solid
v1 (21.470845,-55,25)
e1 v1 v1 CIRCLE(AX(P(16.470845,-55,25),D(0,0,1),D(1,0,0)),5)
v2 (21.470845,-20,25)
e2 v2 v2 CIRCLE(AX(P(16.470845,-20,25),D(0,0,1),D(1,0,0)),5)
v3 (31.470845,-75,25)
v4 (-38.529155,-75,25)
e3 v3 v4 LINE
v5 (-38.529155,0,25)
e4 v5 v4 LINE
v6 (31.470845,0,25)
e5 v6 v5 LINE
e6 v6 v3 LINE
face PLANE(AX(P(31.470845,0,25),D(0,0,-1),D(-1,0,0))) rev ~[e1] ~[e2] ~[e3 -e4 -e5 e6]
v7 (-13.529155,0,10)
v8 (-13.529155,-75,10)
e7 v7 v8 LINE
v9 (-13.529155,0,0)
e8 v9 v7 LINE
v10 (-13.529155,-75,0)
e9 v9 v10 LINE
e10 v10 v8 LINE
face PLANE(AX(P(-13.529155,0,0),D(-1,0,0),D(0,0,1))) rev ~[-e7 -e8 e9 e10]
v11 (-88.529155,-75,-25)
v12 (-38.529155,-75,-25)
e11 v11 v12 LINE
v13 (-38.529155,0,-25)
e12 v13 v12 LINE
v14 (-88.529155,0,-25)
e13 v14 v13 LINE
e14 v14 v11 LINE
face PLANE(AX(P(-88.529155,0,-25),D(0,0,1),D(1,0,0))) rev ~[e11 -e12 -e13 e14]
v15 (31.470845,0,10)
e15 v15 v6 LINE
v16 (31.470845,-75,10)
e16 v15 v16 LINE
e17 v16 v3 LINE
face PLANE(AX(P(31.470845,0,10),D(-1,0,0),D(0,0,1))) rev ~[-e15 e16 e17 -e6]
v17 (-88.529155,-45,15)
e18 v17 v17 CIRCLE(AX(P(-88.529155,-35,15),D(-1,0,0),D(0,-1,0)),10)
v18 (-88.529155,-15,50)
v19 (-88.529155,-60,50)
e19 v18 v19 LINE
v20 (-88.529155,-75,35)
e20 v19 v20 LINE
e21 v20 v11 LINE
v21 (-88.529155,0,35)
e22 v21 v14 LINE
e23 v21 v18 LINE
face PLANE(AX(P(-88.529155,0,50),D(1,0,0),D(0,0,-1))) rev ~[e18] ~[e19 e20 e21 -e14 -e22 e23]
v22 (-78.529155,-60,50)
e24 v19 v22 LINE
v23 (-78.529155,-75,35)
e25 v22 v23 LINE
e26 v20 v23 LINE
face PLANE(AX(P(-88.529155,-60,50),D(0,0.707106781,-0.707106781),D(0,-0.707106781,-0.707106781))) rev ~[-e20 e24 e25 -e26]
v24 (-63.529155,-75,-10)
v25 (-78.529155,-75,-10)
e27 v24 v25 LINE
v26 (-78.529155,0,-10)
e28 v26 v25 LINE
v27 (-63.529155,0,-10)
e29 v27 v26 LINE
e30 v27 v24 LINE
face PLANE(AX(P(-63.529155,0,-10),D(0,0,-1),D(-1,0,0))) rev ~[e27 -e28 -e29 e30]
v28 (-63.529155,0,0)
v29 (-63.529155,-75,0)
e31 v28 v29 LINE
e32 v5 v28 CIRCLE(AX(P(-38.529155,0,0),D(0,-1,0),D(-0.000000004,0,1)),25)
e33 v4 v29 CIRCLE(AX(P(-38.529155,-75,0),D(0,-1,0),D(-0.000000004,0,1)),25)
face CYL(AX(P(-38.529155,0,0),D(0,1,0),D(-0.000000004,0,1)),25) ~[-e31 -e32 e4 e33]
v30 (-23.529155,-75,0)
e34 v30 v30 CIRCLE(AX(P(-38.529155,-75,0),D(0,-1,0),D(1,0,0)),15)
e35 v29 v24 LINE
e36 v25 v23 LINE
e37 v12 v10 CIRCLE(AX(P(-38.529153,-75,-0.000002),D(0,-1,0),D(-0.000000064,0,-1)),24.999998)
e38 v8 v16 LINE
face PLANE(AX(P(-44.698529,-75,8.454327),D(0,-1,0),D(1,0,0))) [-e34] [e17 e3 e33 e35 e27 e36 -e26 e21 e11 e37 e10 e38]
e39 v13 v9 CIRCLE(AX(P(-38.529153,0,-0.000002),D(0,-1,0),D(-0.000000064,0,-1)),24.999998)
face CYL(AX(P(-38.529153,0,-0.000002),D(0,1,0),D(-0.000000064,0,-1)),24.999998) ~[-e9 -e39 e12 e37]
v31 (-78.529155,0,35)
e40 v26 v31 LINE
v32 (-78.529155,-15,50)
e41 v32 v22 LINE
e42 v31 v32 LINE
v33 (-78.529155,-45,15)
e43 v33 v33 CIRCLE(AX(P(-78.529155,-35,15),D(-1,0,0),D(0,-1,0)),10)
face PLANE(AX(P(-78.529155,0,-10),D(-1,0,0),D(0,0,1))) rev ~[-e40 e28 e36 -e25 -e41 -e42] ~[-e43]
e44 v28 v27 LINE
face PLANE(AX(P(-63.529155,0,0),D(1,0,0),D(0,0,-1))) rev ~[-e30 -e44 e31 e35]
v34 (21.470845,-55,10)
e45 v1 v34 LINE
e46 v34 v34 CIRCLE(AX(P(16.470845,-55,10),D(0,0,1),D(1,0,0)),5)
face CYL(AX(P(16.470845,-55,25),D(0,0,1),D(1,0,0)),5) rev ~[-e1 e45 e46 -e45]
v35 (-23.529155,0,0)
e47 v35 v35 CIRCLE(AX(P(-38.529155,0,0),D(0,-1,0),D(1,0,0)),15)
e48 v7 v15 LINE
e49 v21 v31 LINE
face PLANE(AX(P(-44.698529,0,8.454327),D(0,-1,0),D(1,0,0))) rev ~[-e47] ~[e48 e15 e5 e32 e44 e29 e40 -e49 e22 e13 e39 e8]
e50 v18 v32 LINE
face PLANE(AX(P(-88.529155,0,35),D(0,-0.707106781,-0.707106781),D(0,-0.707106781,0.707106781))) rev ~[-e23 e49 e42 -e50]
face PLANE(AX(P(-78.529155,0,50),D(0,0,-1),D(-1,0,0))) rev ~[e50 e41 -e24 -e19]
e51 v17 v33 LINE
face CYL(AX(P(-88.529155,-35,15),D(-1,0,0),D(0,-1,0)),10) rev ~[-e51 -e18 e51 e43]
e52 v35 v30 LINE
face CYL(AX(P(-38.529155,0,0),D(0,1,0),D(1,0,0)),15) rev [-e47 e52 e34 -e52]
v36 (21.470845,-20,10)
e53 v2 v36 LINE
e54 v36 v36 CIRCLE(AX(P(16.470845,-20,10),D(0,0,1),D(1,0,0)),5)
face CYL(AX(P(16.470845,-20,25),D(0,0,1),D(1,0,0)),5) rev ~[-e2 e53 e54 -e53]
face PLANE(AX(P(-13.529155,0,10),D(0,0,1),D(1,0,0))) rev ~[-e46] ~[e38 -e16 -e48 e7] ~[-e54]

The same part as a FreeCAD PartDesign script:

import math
import FreeCAD as App
import Part
import Sketcher
from FreeCAD import Vector

doc = App.newDocument("Part")
params = doc.addObject("Spreadsheet::Sheet", "Params")
for row, (alias, value) in enumerate([
    ("sketch1_diameter", "30 mm"),
    ("sketch1_radius", "24.999998 mm"),
    ("sketch1_width", "45 mm"),
    ("sketch1_width2", "15 mm"),
    ("sketch1_height", "75 mm"),
    ("pad1_length", "75 mm"),
    ("sketch2_diameter", "20 mm"),
    ("sketch2_width", "15 mm"),
    ("pocket1_length", "10 mm"),
    ("sketch3_diameter", "10 mm"),
    ("pocket2_length", "15 mm"),
], start=1):
    params.set(f"A{row}", alias)
    params.set(f"B{row}", "=" + value)
    params.setAlias(f"B{row}", alias)

body = doc.addObject("PartDesign::Body", "Body")

# Sketch on XZ plane
sketch1 = body.newObject("Sketcher::SketchObject", "Sketch")
sketch1.AttachmentSupport = (doc.getObject("XZ_Plane"), [""])
sketch1.MapMode = "FlatFace"
sketch1.addGeometry(Part.LineSegment(Vector(-88.529155, 50, 0), Vector(-88.529155, -25, 0)), False)
sketch1.addGeometry(Part.LineSegment(Vector(-88.529155, -25, 0), Vector(-38.529155, -25, 0)), False)
sketch1.addGeometry(Part.ArcOfCircle(Part.Circle(Vector(-38.529153, -0.000002, 0), Vector(0, 0, 1), 24.999998), math.radians(-90.000004), math.radians(0.000004)), False)
sketch1.addGeometry(Part.LineSegment(Vector(-13.529155, 0, 0), Vector(-13.529155, 10, 0)), False)
sketch1.addGeometry(Part.LineSegment(Vector(-13.529155, 10, 0), Vector(31.470845, 10, 0)), False)
sketch1.addGeometry(Part.LineSegment(Vector(31.470845, 10, 0), Vector(31.470845, 25, 0)), False)
sketch1.addGeometry(Part.LineSegment(Vector(31.470845, 25, 0), Vector(-38.529155, 25, 0)), False)
sketch1.addGeometry(Part.ArcOfCircle(Part.Circle(Vector(-38.529155, 0, 0), Vector(0, 0, 1), 25), math.radians(90), math.radians(180)), False)
sketch1.addGeometry(Part.LineSegment(Vector(-63.529155, 0, 0), Vector(-63.529155, -10, 0)), False)
sketch1.addGeometry(Part.LineSegment(Vector(-63.529155, -10, 0), Vector(-78.529155, -10, 0)), False)
sketch1.addGeometry(Part.LineSegment(Vector(-78.529155, -10, 0), Vector(-78.529155, 50, 0)), False)
sketch1.addGeometry(Part.LineSegment(Vector(-78.529155, 50, 0), Vector(-88.529155, 50, 0)), False)
sketch1.addGeometry(Part.Circle(Vector(-38.529155, 0, 0), Vector(0, 0, 1), 15), False)
sketch1.addConstraint(Sketcher.Constraint("Coincident", 0, 2, 1, 1))
sketch1.addConstraint(Sketcher.Constraint("Tangent", 1, 2, 2, 1))
sketch1.addConstraint(Sketcher.Constraint("Tangent", 2, 2, 3, 1))
sketch1.addConstraint(Sketcher.Constraint("Coincident", 3, 2, 4, 1))
sketch1.addConstraint(Sketcher.Constraint("Coincident", 4, 2, 5, 1))
sketch1.addConstraint(Sketcher.Constraint("Coincident", 5, 2, 6, 1))
sketch1.addConstraint(Sketcher.Constraint("Tangent", 6, 2, 7, 1))
sketch1.addConstraint(Sketcher.Constraint("Tangent", 7, 2, 8, 1))
sketch1.addConstraint(Sketcher.Constraint("Coincident", 8, 2, 9, 1))
sketch1.addConstraint(Sketcher.Constraint("Coincident", 9, 2, 10, 1))
sketch1.addConstraint(Sketcher.Constraint("Coincident", 10, 2, 11, 1))
sketch1.addConstraint(Sketcher.Constraint("Coincident", 11, 2, 0, 1))
sketch1.addConstraint(Sketcher.Constraint("Vertical", 0))
sketch1.addConstraint(Sketcher.Constraint("Horizontal", 1))
sketch1.addConstraint(Sketcher.Constraint("Vertical", 3))
sketch1.addConstraint(Sketcher.Constraint("Horizontal", 4))
sketch1.addConstraint(Sketcher.Constraint("Vertical", 5))
sketch1.addConstraint(Sketcher.Constraint("Horizontal", 6))
sketch1.addConstraint(Sketcher.Constraint("Vertical", 8))
sketch1.addConstraint(Sketcher.Constraint("Horizontal", 9))
sketch1.addConstraint(Sketcher.Constraint("Vertical", 10))
sketch1.addConstraint(Sketcher.Constraint("Horizontal", 11))
sketch1.addConstraint(Sketcher.Constraint("Coincident", 7, 3, 2, 3))
sketch1.addConstraint(Sketcher.Constraint("Coincident", 12, 3, 2, 3))
sketch1.addConstraint(Sketcher.Constraint("Equal", 2, 7))
sketch1.addConstraint(Sketcher.Constraint("PointOnObject", 2, 3, -1))
sketch1.addConstraint(Sketcher.Constraint("Equal", 11, 3))
sketch1.addConstraint(Sketcher.Constraint("Equal", 9, 5))
sketch1.addConstraint(Sketcher.Constraint("Equal", 3, 8))
sketch1.addConstraint(Sketcher.Constraint("Diameter", 12, 30.0))
sketch1.addConstraint(Sketcher.Constraint("Radius", 2, 24.999998))
sketch1.addConstraint(Sketcher.Constraint("DistanceX", 4, 1, 4, 2, 45.0))
sketch1.addConstraint(Sketcher.Constraint("DistanceX", 9, 2, 9, 1, 15.0))
sketch1.addConstraint(Sketcher.Constraint("DistanceY", 0, 2, 0, 1, 75.0))
sketch1.addConstraint(Sketcher.Constraint("DistanceX", 2, 3, -1, 1, 38.529153))
sketch1.setExpression("Constraints[29]", "Params.sketch1_diameter")
sketch1.setExpression("Constraints[30]", "Params.sketch1_radius")
sketch1.setExpression("Constraints[31]", "Params.sketch1_width")
sketch1.setExpression("Constraints[32]", "Params.sketch1_width2")
sketch1.setExpression("Constraints[33]", "Params.sketch1_height")
pad1 = body.newObject("PartDesign::Pad", "Pad")
pad1.Profile = sketch1
pad1.setExpression("Length", "Params.pad1_length")

# Sketch on YZ plane
sketch2 = body.newObject("Sketcher::SketchObject", "Sketch001")
sketch2.AttachmentSupport = (doc.getObject("YZ_Plane"), [""])
sketch2.MapMode = "FlatFace"
sketch2.AttachmentOffset = App.Placement(Vector(0, 0, -88.529155), App.Rotation())
sketch2.addGeometry(Part.LineSegment(Vector(0, 35, 0), Vector(-15, 50, 0)), False)
sketch2.addGeometry(Part.LineSegment(Vector(-15, 50, 0), Vector(0, 50, 0)), False)
sketch2.addGeometry(Part.LineSegment(Vector(0, 50, 0), Vector(0, 35, 0)), False)
sketch2.addGeometry(Part.LineSegment(Vector(-75, 50, 0), Vector(-60, 50, 0)), False)
sketch2.addGeometry(Part.LineSegment(Vector(-60, 50, 0), Vector(-75, 35, 0)), False)
sketch2.addGeometry(Part.LineSegment(Vector(-75, 35, 0), Vector(-75, 50, 0)), False)
sketch2.addGeometry(Part.Circle(Vector(-35, 15, 0), Vector(0, 0, 1), 10), False)
sketch2.addConstraint(Sketcher.Constraint("Coincident", 0, 2, 1, 1))
sketch2.addConstraint(Sketcher.Constraint("Coincident", 1, 2, 2, 1))
sketch2.addConstraint(Sketcher.Constraint("Coincident", 2, 2, 0, 1))
sketch2.addConstraint(Sketcher.Constraint("Coincident", 3, 2, 4, 1))
sketch2.addConstraint(Sketcher.Constraint("Coincident", 4, 2, 5, 1))
sketch2.addConstraint(Sketcher.Constraint("Coincident", 5, 2, 3, 1))
sketch2.addConstraint(Sketcher.Constraint("Horizontal", 1))
sketch2.addConstraint(Sketcher.Constraint("Vertical", 2))
sketch2.addConstraint(Sketcher.Constraint("Horizontal", 3))
sketch2.addConstraint(Sketcher.Constraint("Vertical", 5))
sketch2.addConstraint(Sketcher.Constraint("PointOnObject", 1, 2, -2))
sketch2.addConstraint(Sketcher.Constraint("Perpendicular", 0, 4))
sketch2.addConstraint(Sketcher.Constraint("Horizontal", 1, 2, 3, 2))
sketch2.addConstraint(Sketcher.Constraint("Horizontal", 2, 2, 4, 2))
sketch2.addConstraint(Sketcher.Constraint("Equal", 1, 3))
sketch2.addConstraint(Sketcher.Constraint("Diameter", 6, 20.0))
sketch2.addConstraint(Sketcher.Constraint("DistanceX", 1, 1, 1, 2, 15.0))
sketch2.addConstraint(Sketcher.Constraint("DistanceX", 6, 3, -1, 1, 35.0))
sketch2.addConstraint(Sketcher.Constraint("DistanceY", -1, 1, 6, 3, 15.0))
sketch2.addConstraint(Sketcher.Constraint("DistanceY", -1, 1, 0, 2, 50.0))
sketch2.addConstraint(Sketcher.Constraint("DistanceX", 3, 2, -1, 1, 60.0))
sketch2.setExpression("Constraints[15]", "Params.sketch2_diameter")
sketch2.setExpression("Constraints[16]", "Params.sketch2_width")
pocket1 = body.newObject("PartDesign::Pocket", "Pocket")
pocket1.Profile = sketch2
pocket1.setExpression("Length", "Params.pocket1_length")
pocket1.Reversed = True

# Sketch on XY plane
sketch3 = body.newObject("Sketcher::SketchObject", "Sketch002")
sketch3.AttachmentSupport = (doc.getObject("XY_Plane"), [""])
sketch3.MapMode = "FlatFace"
sketch3.AttachmentOffset = App.Placement(Vector(0, 0, 25), App.Rotation())
sketch3.addGeometry(Part.Circle(Vector(16.470845, -20, 0), Vector(0, 0, 1), 5), False)
sketch3.addGeometry(Part.Circle(Vector(16.470845, -55, 0), Vector(0, 0, 1), 5), False)
sketch3.addConstraint(Sketcher.Constraint("Equal", 0, 1))
sketch3.addConstraint(Sketcher.Constraint("Vertical", 0, 3, 1, 3))
sketch3.addConstraint(Sketcher.Constraint("Diameter", 0, 10.0))
sketch3.addConstraint(Sketcher.Constraint("DistanceY", 0, 3, -1, 1, 20.0))
sketch3.addConstraint(Sketcher.Constraint("DistanceY", 1, 3, -1, 1, 55.0))
sketch3.addConstraint(Sketcher.Constraint("DistanceX", -1, 1, 0, 3, 16.470845))
sketch3.setExpression("Constraints[2]", "Params.sketch3_diameter")
pocket2 = body.newObject("PartDesign::Pocket", "Pocket001")
pocket2.Profile = sketch3
pocket2.setExpression("Length", "Params.pocket2_length")

doc.recompute()
